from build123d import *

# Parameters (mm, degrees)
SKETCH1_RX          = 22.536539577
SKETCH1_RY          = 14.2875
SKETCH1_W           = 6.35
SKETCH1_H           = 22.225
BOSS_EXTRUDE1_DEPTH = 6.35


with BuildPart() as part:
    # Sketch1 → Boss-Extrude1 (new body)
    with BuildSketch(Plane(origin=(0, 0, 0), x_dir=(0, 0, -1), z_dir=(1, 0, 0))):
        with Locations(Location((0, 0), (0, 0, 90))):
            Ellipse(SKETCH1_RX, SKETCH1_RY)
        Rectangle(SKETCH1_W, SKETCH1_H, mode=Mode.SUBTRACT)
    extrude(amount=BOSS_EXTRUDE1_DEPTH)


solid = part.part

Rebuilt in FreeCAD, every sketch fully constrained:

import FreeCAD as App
import Part
import Sketcher
from FreeCAD import Vector
Q = App.Units.Quantity


def add_polygon(sketch, points):
    """Adds a closed chain of lines whose ends are joined by coincident constraints."""
    first, n = sketch.GeometryCount, len(points)
    for a, b in zip(points, points[1:] + points[:1]):
        sketch.addGeometry(Part.LineSegment(App.Vector(*a, 0), App.Vector(*b, 0)), False)
    for i in range(n):
        sketch.addConstraint(Sketcher.Constraint("Coincident", first + i, 2, first + (i + 1) % n, 1))

doc = App.newDocument("Part")
body = doc.addObject("PartDesign::Body", "Body")

sketch1 = body.newObject("Sketcher::SketchObject", "Sketch")
sketch1.AttachmentSupport = (doc.getObject("YZ_Plane"), [""])
sketch1.MapMode = "FlatFace"
sketch1.addGeometry(Part.Ellipse(Vector(22.53654, 0, 0), Vector(0, 14.2875, 0), Vector(0, 0, 0)), False)
add_polygon(sketch1, [(-11.1125, -3.175), (-11.1125, 3.175), (11.1125, 3.175), (11.1125, -3.175)])
sketch1.addConstraint([
    Sketcher.Constraint("Block", 0),
    Sketcher.Constraint("Vertical", 1),
    Sketcher.Constraint("Horizontal", 2),
    Sketcher.Constraint("Vertical", 3),
    Sketcher.Constraint("Horizontal", 4),
    Sketcher.Constraint("Symmetric", 1, 2, 3, 2, -1, 1),
    Sketcher.Constraint("DistanceY", 1, 1, 1, 2, Q("0.25 in")),
    Sketcher.Constraint("DistanceX", 2, 1, 2, 2, Q("0.875 in")),
])
pad1 = body.newObject("PartDesign::Pad", "Pad")
pad1.Profile = sketch1
pad1.Length = Q("0.25 in")

doc.recompute()
